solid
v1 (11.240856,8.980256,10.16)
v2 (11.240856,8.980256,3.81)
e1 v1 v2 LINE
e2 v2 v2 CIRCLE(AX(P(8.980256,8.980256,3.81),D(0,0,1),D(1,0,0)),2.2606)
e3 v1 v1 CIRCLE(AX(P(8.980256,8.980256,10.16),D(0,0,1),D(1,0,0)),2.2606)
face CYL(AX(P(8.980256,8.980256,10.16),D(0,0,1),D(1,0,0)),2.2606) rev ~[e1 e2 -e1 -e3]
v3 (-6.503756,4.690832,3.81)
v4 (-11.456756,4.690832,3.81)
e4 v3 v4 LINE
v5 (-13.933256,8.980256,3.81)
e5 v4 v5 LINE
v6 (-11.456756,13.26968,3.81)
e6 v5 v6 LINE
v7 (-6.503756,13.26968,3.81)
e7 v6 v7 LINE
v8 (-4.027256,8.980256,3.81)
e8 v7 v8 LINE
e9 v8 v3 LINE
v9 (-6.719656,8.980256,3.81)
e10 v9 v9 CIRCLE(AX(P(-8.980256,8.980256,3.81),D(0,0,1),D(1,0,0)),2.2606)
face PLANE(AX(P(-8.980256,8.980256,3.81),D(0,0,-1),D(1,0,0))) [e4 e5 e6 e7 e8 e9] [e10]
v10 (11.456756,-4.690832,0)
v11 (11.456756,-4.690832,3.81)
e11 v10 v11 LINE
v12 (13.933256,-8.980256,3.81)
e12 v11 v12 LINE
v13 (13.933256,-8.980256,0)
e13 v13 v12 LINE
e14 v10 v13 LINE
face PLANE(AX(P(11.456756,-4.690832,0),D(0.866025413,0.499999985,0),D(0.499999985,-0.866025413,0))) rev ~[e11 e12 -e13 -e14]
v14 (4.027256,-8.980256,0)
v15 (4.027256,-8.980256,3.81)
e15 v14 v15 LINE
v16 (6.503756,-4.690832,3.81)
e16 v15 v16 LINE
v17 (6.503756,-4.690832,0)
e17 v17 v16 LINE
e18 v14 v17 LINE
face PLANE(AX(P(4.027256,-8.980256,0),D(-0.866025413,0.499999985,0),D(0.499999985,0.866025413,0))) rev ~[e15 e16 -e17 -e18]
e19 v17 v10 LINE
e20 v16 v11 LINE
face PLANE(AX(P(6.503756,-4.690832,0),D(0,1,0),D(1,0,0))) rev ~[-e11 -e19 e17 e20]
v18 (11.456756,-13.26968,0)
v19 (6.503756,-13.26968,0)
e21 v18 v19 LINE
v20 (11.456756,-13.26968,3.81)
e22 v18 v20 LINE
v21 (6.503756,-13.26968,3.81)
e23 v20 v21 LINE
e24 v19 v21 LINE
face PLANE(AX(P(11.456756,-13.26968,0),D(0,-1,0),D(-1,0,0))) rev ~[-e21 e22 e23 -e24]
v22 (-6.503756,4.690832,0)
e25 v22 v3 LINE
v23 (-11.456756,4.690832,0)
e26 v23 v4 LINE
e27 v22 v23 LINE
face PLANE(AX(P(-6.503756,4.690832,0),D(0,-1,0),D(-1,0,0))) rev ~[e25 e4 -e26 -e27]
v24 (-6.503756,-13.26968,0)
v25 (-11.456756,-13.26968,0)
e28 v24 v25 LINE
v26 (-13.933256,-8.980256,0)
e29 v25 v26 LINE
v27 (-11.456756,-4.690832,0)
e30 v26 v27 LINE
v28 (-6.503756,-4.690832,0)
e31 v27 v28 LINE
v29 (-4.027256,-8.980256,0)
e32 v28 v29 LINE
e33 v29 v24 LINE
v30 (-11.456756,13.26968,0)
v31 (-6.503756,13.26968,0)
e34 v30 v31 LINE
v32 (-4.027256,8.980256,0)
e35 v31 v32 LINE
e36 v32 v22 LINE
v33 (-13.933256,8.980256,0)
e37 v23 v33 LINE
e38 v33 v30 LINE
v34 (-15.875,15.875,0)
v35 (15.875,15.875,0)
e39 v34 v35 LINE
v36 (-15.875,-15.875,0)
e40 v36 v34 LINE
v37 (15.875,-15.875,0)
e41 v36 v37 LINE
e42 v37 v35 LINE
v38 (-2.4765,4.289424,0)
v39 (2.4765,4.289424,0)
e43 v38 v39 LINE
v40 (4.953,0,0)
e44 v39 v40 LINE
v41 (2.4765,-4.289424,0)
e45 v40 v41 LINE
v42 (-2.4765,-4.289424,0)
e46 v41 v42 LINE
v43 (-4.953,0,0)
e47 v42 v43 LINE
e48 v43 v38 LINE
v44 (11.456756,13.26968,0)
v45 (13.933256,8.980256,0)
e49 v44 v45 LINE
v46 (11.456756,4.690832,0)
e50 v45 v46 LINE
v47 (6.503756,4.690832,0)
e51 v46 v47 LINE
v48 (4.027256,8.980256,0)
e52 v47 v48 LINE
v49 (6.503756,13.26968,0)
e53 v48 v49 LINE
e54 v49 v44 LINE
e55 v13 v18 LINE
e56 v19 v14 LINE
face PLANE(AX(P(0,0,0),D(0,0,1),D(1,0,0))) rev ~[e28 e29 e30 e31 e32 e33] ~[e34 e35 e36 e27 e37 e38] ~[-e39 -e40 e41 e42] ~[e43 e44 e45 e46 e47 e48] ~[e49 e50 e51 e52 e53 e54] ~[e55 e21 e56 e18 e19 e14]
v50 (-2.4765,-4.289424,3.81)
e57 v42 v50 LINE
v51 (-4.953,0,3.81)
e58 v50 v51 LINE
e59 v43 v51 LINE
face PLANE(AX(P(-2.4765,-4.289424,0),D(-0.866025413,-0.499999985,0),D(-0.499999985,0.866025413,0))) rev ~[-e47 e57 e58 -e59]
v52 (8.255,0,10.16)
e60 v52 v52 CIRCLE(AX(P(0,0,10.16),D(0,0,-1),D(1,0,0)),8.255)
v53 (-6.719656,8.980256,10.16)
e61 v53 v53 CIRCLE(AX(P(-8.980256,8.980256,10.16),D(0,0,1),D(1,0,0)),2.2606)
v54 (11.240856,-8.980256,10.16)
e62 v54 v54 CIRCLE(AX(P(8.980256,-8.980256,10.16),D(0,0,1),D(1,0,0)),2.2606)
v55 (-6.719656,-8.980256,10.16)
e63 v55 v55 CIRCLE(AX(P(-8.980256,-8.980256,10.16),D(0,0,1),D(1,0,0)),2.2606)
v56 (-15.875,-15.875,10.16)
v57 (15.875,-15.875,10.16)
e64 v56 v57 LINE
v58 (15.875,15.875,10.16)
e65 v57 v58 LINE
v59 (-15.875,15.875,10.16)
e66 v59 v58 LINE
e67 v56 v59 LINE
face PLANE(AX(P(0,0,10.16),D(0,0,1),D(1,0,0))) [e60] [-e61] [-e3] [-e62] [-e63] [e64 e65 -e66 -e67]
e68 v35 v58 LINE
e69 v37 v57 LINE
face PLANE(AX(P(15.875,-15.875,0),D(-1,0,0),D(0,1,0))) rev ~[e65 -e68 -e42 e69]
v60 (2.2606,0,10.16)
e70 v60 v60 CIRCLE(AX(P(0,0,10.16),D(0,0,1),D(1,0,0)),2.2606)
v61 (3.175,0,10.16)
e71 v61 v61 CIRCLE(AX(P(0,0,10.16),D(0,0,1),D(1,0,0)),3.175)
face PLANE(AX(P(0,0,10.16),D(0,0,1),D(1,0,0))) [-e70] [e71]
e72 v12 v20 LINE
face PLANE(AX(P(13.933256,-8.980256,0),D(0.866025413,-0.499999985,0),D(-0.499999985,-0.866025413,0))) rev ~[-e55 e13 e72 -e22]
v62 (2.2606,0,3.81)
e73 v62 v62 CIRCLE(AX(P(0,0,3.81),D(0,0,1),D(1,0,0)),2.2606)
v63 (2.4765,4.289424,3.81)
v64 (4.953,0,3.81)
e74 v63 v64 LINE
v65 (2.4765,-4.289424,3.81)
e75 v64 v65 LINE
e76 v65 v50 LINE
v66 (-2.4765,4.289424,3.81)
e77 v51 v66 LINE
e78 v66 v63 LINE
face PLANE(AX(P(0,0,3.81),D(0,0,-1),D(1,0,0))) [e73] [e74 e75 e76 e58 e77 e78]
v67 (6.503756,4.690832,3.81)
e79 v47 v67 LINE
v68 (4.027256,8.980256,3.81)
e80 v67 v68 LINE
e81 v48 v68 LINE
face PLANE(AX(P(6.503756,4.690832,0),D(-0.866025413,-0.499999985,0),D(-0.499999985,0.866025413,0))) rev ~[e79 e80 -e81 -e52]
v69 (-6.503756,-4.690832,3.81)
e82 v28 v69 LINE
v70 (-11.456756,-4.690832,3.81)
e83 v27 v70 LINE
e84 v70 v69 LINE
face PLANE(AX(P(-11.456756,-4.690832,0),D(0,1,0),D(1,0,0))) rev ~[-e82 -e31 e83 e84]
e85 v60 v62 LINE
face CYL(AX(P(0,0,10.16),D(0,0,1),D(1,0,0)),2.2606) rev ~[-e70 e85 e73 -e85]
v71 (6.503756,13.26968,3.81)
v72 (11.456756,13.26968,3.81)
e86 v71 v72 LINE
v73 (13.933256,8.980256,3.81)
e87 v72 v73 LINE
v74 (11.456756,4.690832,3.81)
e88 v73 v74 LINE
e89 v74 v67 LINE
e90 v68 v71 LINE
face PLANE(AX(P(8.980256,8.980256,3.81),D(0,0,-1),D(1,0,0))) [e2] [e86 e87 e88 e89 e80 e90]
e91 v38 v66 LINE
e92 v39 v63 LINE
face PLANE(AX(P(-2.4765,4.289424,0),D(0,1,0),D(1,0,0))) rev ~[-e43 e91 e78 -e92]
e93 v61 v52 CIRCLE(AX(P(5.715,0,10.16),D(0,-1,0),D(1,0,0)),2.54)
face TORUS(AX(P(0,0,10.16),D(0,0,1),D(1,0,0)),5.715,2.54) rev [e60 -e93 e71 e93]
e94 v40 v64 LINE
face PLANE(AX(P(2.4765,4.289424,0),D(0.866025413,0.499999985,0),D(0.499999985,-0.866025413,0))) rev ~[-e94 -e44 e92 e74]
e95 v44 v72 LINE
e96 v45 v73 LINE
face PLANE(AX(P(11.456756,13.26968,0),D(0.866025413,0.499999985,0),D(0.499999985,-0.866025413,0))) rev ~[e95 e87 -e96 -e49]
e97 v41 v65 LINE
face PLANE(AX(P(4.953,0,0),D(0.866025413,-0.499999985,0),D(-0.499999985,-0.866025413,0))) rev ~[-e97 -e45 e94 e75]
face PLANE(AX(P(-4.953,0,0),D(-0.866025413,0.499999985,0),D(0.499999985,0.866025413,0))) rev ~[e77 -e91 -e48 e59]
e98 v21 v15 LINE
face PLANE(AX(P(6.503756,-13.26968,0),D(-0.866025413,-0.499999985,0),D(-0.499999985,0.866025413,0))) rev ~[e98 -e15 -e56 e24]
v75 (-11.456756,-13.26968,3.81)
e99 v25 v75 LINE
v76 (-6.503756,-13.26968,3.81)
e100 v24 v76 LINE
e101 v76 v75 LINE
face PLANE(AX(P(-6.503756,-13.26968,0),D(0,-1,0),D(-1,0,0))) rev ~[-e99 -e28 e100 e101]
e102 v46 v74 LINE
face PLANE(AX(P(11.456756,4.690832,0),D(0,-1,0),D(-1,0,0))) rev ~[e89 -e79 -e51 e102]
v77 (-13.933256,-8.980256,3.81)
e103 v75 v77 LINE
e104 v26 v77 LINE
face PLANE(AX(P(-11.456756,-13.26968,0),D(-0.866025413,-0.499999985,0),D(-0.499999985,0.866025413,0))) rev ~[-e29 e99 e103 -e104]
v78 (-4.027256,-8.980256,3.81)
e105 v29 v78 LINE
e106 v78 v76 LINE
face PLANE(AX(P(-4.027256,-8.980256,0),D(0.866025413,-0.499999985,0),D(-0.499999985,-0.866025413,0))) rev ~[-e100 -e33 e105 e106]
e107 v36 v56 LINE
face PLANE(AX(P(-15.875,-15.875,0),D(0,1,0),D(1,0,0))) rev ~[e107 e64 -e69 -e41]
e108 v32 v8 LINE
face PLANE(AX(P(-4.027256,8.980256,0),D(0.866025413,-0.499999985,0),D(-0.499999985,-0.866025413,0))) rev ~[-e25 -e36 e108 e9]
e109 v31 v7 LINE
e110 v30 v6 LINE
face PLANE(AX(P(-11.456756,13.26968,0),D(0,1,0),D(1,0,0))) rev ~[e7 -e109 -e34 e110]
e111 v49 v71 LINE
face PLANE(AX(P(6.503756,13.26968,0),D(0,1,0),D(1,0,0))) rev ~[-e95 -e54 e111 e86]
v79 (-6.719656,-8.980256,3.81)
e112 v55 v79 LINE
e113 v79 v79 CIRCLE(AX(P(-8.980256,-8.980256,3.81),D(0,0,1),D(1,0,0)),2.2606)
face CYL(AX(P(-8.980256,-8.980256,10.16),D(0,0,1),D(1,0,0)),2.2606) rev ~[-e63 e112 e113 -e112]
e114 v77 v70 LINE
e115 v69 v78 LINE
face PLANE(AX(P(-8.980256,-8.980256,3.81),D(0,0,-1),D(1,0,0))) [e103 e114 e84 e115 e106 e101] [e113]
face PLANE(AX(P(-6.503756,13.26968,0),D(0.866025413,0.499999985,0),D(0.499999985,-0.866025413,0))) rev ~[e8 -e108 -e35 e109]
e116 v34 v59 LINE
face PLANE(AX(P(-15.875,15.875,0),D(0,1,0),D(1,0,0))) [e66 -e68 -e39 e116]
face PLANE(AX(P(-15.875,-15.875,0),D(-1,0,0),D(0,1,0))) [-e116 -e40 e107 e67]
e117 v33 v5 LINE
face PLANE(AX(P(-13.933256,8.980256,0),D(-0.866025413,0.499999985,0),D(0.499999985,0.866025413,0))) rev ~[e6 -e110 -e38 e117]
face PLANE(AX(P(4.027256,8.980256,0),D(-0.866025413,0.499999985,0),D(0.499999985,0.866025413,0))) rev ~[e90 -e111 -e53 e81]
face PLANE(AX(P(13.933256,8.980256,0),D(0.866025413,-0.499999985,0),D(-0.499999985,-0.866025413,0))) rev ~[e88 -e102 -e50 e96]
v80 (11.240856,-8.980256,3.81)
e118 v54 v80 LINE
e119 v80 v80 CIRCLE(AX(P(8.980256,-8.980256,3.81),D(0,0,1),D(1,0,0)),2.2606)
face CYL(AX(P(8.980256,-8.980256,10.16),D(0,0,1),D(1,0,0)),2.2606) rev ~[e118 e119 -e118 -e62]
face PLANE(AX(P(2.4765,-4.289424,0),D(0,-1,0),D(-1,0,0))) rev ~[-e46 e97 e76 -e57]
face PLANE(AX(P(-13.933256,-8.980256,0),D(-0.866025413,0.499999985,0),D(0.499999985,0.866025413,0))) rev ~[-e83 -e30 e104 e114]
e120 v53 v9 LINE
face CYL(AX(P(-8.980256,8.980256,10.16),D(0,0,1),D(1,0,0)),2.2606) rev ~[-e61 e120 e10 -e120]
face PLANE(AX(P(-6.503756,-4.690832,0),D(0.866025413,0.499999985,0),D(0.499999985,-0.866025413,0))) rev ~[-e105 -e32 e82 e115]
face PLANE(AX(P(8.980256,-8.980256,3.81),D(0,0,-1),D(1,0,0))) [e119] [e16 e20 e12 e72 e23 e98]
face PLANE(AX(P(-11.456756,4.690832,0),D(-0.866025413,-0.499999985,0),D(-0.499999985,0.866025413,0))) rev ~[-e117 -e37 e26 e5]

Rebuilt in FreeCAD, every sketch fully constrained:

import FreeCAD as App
import Part
import Sketcher
from FreeCAD import Vector
Q = App.Units.Quantity


def add_polygon(sketch, points):
    """Adds a closed chain of lines whose ends are joined by coincident constraints."""
    first, n = sketch.GeometryCount, len(points)
    for a, b in zip(points, points[1:] + points[:1]):
        sketch.addGeometry(Part.LineSegment(App.Vector(*a, 0), App.Vector(*b, 0)), False)
    for i in range(n):
        sketch.addConstraint(Sketcher.Constraint("Coincident", first + i, 2, first + (i + 1) % n, 1))

doc = App.newDocument("Part")
body = doc.addObject("PartDesign::Body", "Body")

# Sketch on XY plane
sketch1 = body.newObject("Sketcher::SketchObject", "Sketch")
sketch1.AttachmentSupport = (doc.getObject("XY_Plane"), [""])
sketch1.MapMode = "FlatFace"
add_polygon(sketch1, [(-16, 16), (-16, -16), (16, -16), (16, 16)])  # lines 0-3
sketch1.addConstraint([
    Sketcher.Constraint("Vertical", 0),
    Sketcher.Constraint("Horizontal", 1),
    Sketcher.Constraint("Vertical", 2),
    Sketcher.Constraint("Horizontal", 3),
    Sketcher.Constraint("Symmetric", 0, 2, 2, 2, -1, 1),
    Sketcher.Constraint("Equal", 3, 0),
    Sketcher.Constraint("DistanceX", 1, 1, 1, 2, Q("1.25 in")),
])
pad1 = body.newObject("PartDesign::Pad", "Pad")
pad1.Profile = sketch1
pad1.Length = Q("0.4 in")

# Sketch on XZ plane
sketch2 = body.newObject("Sketcher::SketchObject", "Sketch001")
sketch2.AttachmentSupport = (doc.getObject("XZ_Plane"), [""])
sketch2.MapMode = "FlatFace"
sketch2.addGeometry(Part.Circle(Vector(5.7, 10.2, 0), Vector(0, 0, 1), 2.5), False)
sketch2.addConstraint([
    Sketcher.Constraint("Diameter", 0, Q("0.2 in")),
    Sketcher.Constraint("DistanceY", -1, 1, 0, 3, Q("0.4 in")),
    Sketcher.Constraint("DistanceX", -1, 1, 0, 3, Q("0.225 in")),
])
groove = body.newObject("PartDesign::Groove", "Groove")
groove.Profile = sketch2
groove.ReferenceAxis = (sketch2, ["V_Axis"])
groove.Angle = 360

# Sketch on XY plane
sketch3 = body.newObject("Sketcher::SketchObject", "Sketch002")
sketch3.AttachmentSupport = (doc.getObject("XY_Plane"), [""])
sketch3.MapMode = "FlatFace"
sketch3.AttachmentOffset = App.Placement(Vector(0, 0, 0.4 * 25.4), App.Rotation())
sketch3.addGeometry([
    Part.Circle(Vector(0, 0, 0), Vector(0, 0, 1), 2.3),  # 0
    Part.Circle(Vector(-9, 9, 0), Vector(0, 0, 1), 2.3),  # 1
    Part.Circle(Vector(9, 9, 0), Vector(0, 0, 1), 2.3),  # 2
    Part.Circle(Vector(-9, -9, 0), Vector(0, 0, 1), 2.3),  # 3
    Part.Circle(Vector(9, -9, 0), Vector(0, 0, 1), 2.3),  # 4
], False)
sketch3.addConstraint([
    Sketcher.Constraint("Coincident", 0, 3, -1, 1),
    Sketcher.Constraint("Equal", 0, 1),
    Sketcher.Constraint("Equal", 1, 2),
    Sketcher.Constraint("Equal", 2, 3),
    Sketcher.Constraint("Equal", 3, 4),
    Sketcher.Constraint("Symmetric", 2, 3, 3, 3, -1, 1),
    Sketcher.Constraint("Symmetric", 1, 3, 4, 3, -1, 1),
    Sketcher.Constraint("Symmetric", 1, 3, 2, 3, -2),
    Sketcher.Constraint("Diameter", 0, Q("0.178 in")),
    Sketcher.Constraint("DistanceX", 1, 3, -1, 1, Q("8.980256 mm")),
    Sketcher.Constraint("DistanceY", -1, 1, 1, 3, Q("8.980256 mm")),
])
pocket1 = body.newObject("PartDesign::Pocket", "Pocket")
pocket1.Profile = sketch3
pocket1.Length = Q("1 in")

# Sketch on XY plane
sketch4 = body.newObject("Sketcher::SketchObject", "Sketch003")
sketch4.AttachmentSupport = (doc.getObject("XY_Plane"), [""])
sketch4.MapMode = "FlatFace"
add_polygon(sketch4, [(-2.5, 4.3), (2.5, 4.3), (5, 0), (2.5, -4.3), (-2.5, -4.3), (-5, 0)])  # lines 0-5
add_polygon(sketch4, [(-11.5, -4.7), (-6.5, -4.7), (-4, -9), (-6.5, -13.3), (-11.5, -13.3), (-13.9, -9)])  # lines 6-11
add_polygon(sketch4, [(11.5, -13.3), (6.5, -13.3), (4, -9), (6.5, -4.7), (11.5, -4.7), (13.9, -9)])  # lines 12-17
add_polygon(sketch4, [(4, 9), (6.5, 13.3), (11.5, 13.3), (13.9, 9), (11.5, 4.7), (6.5, 4.7)])  # lines 18-23
add_polygon(sketch4, [(-4, 9), (-6.5, 4.7), (-11.5, 4.7), (-13.9, 9), (-11.5, 13.3), (-6.5, 13.3)])  # lines 24-29
sketch4.addConstraint([
    Sketcher.Constraint("Horizontal", 0),
    Sketcher.Constraint("Horizontal", 3),
    Sketcher.Constraint("Horizontal", 6),
    Sketcher.Constraint("Horizontal", 9),
    Sketcher.Constraint("Horizontal", 12),
    Sketcher.Constraint("Horizontal", 15),
    Sketcher.Constraint("Horizontal", 19),
    Sketcher.Constraint("Horizontal", 22),
    Sketcher.Constraint("Horizontal", 25),
    Sketcher.Constraint("Horizontal", 28),
    Sketcher.Constraint("Symmetric", 0, 2, 3, 2, -1, 1),
    Sketcher.Constraint("Symmetric", 1, 2, 4, 2, -1, 1),
    Sketcher.Constraint("Symmetric", 8, 2, 18, 2, -1, 1),
    Sketcher.Constraint("Symmetric", 10, 2, 20, 2, -1, 1),
    Sketcher.Constraint("Symmetric", 11, 2, 21, 2, -1, 1),
    Sketcher.Constraint("Symmetric", 7, 2, 23, 2, -1, 1),
    Sketcher.Constraint("Symmetric", 14, 2, 24, 2, -1, 1),
    Sketcher.Constraint("Symmetric", 16, 2, 26, 2, -1, 1),
    Sketcher.Constraint("Symmetric", 17, 2, 27, 2, -1, 1),
    Sketcher.Constraint("Symmetric", 13, 2, 29, 2, -1, 1),
    Sketcher.Constraint("Symmetric", 8, 2, 12, 2, -2),
    Sketcher.Constraint("Symmetric", 7, 2, 13, 2, -2),
    Sketcher.Constraint("Symmetric", 6, 2, 14, 2, -2),
    Sketcher.Constraint("Symmetric", 10, 2, 16, 2, -2),
    Sketcher.Constraint("PointOnObject", 1, 2, -1),
    Sketcher.Constraint("Parallel", 2, 5),
    Sketcher.Constraint("Parallel", 4, 7),
    Sketcher.Constraint("Parallel", 5, 8),
    Sketcher.Constraint("Parallel", 7, 10),
    Sketcher.Constraint("Parallel", 8, 11),
    Sketcher.Constraint("Parallel", 10, 13),
    Sketcher.Constraint("Parallel", 13, 16),
    Sketcher.Constraint("Parallel", 14, 17),
    Sketcher.Constraint("Parallel", 16, 20),
    Sketcher.Constraint("Parallel", 20, 23),
    Sketcher.Constraint("Parallel", 23, 26),
    Sketcher.Constraint("Parallel", 26, 29),
    Sketcher.Constraint("Horizontal", 7, 2, 10, 2),
    Sketcher.Constraint("Vertical", 6, 2, 8, 2),
    Sketcher.Constraint("Equal", 3, 6),
    Sketcher.Constraint("Equal", 5, 7),
    Sketcher.Constraint("Angle", 1, Q("-60.000001 deg")),
    Sketcher.Constraint("DistanceX", 0, 1, 0, 2, Q("0.195 in")),
    Sketcher.Constraint("DistanceX", 4, 2, 1, 2, Q("0.39 in")),
    Sketcher.Constraint("DistanceY", 8, 2, -1, 1, Q("13.26968 mm")),
    Sketcher.Constraint("DistanceX", 6, 2, -1, 1, Q("6.503756 mm")),
])
pocket2 = body.newObject("PartDesign::Pocket", "Pocket001")
pocket2.Profile = sketch4
pocket2.Length = Q("0.15 in")
pocket2.Reversed = True

doc.recompute()
